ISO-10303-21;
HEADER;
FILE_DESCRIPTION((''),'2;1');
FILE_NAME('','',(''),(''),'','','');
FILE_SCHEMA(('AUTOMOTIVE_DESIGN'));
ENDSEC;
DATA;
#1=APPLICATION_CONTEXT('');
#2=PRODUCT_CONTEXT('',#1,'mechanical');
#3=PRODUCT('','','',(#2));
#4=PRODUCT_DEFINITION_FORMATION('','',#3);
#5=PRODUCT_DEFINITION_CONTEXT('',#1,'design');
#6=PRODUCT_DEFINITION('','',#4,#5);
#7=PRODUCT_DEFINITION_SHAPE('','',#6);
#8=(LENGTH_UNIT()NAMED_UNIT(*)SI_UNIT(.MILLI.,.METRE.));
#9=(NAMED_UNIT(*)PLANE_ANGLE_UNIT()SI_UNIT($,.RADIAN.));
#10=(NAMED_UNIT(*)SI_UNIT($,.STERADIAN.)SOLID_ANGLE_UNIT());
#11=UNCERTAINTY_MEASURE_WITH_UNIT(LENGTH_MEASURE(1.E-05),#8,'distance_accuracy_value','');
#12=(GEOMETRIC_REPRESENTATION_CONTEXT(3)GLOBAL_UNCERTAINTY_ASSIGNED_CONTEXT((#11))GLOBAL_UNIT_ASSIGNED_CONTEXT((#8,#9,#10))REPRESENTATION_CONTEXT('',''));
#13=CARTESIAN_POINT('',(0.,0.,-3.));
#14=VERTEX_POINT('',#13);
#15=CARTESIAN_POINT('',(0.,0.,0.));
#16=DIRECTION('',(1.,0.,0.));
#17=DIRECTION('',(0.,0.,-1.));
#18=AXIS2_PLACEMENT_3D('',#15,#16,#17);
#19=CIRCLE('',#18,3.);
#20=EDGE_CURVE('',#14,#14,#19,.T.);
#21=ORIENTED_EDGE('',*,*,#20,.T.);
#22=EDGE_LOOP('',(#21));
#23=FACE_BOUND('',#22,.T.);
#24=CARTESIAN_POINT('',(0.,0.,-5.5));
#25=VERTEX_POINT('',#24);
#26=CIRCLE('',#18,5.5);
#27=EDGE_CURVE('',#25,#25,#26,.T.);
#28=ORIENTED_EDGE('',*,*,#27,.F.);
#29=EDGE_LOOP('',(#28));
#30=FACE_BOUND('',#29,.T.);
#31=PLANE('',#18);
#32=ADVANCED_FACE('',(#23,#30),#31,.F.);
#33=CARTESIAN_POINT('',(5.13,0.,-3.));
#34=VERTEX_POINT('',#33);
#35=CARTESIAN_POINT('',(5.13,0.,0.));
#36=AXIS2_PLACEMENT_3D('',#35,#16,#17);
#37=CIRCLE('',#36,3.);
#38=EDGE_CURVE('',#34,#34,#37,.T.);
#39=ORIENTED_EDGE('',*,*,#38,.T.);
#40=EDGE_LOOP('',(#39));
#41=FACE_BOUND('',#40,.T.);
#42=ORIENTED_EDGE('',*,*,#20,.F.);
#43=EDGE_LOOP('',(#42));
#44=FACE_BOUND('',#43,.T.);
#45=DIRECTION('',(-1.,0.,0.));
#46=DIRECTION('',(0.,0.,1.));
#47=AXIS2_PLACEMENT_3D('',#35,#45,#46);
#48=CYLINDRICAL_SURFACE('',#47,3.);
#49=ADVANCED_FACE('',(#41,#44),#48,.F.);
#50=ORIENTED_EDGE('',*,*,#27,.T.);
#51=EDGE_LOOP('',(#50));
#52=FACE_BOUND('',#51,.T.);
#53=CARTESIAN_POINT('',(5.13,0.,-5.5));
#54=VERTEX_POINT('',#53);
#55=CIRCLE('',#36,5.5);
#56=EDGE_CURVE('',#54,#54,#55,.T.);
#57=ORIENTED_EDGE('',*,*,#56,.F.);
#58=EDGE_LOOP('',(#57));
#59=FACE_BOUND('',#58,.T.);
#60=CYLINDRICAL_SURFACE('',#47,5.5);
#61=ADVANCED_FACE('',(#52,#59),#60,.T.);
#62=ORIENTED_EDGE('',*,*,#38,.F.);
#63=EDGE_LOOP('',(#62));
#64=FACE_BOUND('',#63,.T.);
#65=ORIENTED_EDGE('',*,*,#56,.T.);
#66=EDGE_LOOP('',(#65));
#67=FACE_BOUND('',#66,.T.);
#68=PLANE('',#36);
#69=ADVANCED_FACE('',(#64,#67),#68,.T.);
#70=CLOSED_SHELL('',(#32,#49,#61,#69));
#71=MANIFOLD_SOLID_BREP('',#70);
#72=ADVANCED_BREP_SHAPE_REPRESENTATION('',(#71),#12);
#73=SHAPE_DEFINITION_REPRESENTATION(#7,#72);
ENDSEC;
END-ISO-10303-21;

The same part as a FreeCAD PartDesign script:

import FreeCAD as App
import Part
import Sketcher

V = App.Vector

doc = App.newDocument("Part")
body = doc.addObject("PartDesign::Body", "Body")

# Sketch on YZ plane
sketch1 = body.newObject("Sketcher::SketchObject", "Sketch")
sketch1.AttachmentSupport = (doc.getObject("YZ_Plane"), [""])
sketch1.MapMode = "FlatFace"
sketch1.addGeometry([
    Part.Circle(V(0, 0, 0), V(0, 0, 1), 5.5),
    Part.Circle(V(0, 0, 0), V(0, 0, 1), 3),
], False)
sketch1.addConstraint([
    Sketcher.Constraint("Coincident", 0, 3, -1, 1),
    Sketcher.Constraint("Coincident", 1, 3, -1, 1),
    Sketcher.Constraint("Diameter", 0, 11.0),
    Sketcher.Constraint("Diameter", 1, 6.0),
])
pad1 = body.newObject("PartDesign::Pad", "Pad")
pad1.Profile = sketch1
pad1.Length = 5.13

doc.recompute()
